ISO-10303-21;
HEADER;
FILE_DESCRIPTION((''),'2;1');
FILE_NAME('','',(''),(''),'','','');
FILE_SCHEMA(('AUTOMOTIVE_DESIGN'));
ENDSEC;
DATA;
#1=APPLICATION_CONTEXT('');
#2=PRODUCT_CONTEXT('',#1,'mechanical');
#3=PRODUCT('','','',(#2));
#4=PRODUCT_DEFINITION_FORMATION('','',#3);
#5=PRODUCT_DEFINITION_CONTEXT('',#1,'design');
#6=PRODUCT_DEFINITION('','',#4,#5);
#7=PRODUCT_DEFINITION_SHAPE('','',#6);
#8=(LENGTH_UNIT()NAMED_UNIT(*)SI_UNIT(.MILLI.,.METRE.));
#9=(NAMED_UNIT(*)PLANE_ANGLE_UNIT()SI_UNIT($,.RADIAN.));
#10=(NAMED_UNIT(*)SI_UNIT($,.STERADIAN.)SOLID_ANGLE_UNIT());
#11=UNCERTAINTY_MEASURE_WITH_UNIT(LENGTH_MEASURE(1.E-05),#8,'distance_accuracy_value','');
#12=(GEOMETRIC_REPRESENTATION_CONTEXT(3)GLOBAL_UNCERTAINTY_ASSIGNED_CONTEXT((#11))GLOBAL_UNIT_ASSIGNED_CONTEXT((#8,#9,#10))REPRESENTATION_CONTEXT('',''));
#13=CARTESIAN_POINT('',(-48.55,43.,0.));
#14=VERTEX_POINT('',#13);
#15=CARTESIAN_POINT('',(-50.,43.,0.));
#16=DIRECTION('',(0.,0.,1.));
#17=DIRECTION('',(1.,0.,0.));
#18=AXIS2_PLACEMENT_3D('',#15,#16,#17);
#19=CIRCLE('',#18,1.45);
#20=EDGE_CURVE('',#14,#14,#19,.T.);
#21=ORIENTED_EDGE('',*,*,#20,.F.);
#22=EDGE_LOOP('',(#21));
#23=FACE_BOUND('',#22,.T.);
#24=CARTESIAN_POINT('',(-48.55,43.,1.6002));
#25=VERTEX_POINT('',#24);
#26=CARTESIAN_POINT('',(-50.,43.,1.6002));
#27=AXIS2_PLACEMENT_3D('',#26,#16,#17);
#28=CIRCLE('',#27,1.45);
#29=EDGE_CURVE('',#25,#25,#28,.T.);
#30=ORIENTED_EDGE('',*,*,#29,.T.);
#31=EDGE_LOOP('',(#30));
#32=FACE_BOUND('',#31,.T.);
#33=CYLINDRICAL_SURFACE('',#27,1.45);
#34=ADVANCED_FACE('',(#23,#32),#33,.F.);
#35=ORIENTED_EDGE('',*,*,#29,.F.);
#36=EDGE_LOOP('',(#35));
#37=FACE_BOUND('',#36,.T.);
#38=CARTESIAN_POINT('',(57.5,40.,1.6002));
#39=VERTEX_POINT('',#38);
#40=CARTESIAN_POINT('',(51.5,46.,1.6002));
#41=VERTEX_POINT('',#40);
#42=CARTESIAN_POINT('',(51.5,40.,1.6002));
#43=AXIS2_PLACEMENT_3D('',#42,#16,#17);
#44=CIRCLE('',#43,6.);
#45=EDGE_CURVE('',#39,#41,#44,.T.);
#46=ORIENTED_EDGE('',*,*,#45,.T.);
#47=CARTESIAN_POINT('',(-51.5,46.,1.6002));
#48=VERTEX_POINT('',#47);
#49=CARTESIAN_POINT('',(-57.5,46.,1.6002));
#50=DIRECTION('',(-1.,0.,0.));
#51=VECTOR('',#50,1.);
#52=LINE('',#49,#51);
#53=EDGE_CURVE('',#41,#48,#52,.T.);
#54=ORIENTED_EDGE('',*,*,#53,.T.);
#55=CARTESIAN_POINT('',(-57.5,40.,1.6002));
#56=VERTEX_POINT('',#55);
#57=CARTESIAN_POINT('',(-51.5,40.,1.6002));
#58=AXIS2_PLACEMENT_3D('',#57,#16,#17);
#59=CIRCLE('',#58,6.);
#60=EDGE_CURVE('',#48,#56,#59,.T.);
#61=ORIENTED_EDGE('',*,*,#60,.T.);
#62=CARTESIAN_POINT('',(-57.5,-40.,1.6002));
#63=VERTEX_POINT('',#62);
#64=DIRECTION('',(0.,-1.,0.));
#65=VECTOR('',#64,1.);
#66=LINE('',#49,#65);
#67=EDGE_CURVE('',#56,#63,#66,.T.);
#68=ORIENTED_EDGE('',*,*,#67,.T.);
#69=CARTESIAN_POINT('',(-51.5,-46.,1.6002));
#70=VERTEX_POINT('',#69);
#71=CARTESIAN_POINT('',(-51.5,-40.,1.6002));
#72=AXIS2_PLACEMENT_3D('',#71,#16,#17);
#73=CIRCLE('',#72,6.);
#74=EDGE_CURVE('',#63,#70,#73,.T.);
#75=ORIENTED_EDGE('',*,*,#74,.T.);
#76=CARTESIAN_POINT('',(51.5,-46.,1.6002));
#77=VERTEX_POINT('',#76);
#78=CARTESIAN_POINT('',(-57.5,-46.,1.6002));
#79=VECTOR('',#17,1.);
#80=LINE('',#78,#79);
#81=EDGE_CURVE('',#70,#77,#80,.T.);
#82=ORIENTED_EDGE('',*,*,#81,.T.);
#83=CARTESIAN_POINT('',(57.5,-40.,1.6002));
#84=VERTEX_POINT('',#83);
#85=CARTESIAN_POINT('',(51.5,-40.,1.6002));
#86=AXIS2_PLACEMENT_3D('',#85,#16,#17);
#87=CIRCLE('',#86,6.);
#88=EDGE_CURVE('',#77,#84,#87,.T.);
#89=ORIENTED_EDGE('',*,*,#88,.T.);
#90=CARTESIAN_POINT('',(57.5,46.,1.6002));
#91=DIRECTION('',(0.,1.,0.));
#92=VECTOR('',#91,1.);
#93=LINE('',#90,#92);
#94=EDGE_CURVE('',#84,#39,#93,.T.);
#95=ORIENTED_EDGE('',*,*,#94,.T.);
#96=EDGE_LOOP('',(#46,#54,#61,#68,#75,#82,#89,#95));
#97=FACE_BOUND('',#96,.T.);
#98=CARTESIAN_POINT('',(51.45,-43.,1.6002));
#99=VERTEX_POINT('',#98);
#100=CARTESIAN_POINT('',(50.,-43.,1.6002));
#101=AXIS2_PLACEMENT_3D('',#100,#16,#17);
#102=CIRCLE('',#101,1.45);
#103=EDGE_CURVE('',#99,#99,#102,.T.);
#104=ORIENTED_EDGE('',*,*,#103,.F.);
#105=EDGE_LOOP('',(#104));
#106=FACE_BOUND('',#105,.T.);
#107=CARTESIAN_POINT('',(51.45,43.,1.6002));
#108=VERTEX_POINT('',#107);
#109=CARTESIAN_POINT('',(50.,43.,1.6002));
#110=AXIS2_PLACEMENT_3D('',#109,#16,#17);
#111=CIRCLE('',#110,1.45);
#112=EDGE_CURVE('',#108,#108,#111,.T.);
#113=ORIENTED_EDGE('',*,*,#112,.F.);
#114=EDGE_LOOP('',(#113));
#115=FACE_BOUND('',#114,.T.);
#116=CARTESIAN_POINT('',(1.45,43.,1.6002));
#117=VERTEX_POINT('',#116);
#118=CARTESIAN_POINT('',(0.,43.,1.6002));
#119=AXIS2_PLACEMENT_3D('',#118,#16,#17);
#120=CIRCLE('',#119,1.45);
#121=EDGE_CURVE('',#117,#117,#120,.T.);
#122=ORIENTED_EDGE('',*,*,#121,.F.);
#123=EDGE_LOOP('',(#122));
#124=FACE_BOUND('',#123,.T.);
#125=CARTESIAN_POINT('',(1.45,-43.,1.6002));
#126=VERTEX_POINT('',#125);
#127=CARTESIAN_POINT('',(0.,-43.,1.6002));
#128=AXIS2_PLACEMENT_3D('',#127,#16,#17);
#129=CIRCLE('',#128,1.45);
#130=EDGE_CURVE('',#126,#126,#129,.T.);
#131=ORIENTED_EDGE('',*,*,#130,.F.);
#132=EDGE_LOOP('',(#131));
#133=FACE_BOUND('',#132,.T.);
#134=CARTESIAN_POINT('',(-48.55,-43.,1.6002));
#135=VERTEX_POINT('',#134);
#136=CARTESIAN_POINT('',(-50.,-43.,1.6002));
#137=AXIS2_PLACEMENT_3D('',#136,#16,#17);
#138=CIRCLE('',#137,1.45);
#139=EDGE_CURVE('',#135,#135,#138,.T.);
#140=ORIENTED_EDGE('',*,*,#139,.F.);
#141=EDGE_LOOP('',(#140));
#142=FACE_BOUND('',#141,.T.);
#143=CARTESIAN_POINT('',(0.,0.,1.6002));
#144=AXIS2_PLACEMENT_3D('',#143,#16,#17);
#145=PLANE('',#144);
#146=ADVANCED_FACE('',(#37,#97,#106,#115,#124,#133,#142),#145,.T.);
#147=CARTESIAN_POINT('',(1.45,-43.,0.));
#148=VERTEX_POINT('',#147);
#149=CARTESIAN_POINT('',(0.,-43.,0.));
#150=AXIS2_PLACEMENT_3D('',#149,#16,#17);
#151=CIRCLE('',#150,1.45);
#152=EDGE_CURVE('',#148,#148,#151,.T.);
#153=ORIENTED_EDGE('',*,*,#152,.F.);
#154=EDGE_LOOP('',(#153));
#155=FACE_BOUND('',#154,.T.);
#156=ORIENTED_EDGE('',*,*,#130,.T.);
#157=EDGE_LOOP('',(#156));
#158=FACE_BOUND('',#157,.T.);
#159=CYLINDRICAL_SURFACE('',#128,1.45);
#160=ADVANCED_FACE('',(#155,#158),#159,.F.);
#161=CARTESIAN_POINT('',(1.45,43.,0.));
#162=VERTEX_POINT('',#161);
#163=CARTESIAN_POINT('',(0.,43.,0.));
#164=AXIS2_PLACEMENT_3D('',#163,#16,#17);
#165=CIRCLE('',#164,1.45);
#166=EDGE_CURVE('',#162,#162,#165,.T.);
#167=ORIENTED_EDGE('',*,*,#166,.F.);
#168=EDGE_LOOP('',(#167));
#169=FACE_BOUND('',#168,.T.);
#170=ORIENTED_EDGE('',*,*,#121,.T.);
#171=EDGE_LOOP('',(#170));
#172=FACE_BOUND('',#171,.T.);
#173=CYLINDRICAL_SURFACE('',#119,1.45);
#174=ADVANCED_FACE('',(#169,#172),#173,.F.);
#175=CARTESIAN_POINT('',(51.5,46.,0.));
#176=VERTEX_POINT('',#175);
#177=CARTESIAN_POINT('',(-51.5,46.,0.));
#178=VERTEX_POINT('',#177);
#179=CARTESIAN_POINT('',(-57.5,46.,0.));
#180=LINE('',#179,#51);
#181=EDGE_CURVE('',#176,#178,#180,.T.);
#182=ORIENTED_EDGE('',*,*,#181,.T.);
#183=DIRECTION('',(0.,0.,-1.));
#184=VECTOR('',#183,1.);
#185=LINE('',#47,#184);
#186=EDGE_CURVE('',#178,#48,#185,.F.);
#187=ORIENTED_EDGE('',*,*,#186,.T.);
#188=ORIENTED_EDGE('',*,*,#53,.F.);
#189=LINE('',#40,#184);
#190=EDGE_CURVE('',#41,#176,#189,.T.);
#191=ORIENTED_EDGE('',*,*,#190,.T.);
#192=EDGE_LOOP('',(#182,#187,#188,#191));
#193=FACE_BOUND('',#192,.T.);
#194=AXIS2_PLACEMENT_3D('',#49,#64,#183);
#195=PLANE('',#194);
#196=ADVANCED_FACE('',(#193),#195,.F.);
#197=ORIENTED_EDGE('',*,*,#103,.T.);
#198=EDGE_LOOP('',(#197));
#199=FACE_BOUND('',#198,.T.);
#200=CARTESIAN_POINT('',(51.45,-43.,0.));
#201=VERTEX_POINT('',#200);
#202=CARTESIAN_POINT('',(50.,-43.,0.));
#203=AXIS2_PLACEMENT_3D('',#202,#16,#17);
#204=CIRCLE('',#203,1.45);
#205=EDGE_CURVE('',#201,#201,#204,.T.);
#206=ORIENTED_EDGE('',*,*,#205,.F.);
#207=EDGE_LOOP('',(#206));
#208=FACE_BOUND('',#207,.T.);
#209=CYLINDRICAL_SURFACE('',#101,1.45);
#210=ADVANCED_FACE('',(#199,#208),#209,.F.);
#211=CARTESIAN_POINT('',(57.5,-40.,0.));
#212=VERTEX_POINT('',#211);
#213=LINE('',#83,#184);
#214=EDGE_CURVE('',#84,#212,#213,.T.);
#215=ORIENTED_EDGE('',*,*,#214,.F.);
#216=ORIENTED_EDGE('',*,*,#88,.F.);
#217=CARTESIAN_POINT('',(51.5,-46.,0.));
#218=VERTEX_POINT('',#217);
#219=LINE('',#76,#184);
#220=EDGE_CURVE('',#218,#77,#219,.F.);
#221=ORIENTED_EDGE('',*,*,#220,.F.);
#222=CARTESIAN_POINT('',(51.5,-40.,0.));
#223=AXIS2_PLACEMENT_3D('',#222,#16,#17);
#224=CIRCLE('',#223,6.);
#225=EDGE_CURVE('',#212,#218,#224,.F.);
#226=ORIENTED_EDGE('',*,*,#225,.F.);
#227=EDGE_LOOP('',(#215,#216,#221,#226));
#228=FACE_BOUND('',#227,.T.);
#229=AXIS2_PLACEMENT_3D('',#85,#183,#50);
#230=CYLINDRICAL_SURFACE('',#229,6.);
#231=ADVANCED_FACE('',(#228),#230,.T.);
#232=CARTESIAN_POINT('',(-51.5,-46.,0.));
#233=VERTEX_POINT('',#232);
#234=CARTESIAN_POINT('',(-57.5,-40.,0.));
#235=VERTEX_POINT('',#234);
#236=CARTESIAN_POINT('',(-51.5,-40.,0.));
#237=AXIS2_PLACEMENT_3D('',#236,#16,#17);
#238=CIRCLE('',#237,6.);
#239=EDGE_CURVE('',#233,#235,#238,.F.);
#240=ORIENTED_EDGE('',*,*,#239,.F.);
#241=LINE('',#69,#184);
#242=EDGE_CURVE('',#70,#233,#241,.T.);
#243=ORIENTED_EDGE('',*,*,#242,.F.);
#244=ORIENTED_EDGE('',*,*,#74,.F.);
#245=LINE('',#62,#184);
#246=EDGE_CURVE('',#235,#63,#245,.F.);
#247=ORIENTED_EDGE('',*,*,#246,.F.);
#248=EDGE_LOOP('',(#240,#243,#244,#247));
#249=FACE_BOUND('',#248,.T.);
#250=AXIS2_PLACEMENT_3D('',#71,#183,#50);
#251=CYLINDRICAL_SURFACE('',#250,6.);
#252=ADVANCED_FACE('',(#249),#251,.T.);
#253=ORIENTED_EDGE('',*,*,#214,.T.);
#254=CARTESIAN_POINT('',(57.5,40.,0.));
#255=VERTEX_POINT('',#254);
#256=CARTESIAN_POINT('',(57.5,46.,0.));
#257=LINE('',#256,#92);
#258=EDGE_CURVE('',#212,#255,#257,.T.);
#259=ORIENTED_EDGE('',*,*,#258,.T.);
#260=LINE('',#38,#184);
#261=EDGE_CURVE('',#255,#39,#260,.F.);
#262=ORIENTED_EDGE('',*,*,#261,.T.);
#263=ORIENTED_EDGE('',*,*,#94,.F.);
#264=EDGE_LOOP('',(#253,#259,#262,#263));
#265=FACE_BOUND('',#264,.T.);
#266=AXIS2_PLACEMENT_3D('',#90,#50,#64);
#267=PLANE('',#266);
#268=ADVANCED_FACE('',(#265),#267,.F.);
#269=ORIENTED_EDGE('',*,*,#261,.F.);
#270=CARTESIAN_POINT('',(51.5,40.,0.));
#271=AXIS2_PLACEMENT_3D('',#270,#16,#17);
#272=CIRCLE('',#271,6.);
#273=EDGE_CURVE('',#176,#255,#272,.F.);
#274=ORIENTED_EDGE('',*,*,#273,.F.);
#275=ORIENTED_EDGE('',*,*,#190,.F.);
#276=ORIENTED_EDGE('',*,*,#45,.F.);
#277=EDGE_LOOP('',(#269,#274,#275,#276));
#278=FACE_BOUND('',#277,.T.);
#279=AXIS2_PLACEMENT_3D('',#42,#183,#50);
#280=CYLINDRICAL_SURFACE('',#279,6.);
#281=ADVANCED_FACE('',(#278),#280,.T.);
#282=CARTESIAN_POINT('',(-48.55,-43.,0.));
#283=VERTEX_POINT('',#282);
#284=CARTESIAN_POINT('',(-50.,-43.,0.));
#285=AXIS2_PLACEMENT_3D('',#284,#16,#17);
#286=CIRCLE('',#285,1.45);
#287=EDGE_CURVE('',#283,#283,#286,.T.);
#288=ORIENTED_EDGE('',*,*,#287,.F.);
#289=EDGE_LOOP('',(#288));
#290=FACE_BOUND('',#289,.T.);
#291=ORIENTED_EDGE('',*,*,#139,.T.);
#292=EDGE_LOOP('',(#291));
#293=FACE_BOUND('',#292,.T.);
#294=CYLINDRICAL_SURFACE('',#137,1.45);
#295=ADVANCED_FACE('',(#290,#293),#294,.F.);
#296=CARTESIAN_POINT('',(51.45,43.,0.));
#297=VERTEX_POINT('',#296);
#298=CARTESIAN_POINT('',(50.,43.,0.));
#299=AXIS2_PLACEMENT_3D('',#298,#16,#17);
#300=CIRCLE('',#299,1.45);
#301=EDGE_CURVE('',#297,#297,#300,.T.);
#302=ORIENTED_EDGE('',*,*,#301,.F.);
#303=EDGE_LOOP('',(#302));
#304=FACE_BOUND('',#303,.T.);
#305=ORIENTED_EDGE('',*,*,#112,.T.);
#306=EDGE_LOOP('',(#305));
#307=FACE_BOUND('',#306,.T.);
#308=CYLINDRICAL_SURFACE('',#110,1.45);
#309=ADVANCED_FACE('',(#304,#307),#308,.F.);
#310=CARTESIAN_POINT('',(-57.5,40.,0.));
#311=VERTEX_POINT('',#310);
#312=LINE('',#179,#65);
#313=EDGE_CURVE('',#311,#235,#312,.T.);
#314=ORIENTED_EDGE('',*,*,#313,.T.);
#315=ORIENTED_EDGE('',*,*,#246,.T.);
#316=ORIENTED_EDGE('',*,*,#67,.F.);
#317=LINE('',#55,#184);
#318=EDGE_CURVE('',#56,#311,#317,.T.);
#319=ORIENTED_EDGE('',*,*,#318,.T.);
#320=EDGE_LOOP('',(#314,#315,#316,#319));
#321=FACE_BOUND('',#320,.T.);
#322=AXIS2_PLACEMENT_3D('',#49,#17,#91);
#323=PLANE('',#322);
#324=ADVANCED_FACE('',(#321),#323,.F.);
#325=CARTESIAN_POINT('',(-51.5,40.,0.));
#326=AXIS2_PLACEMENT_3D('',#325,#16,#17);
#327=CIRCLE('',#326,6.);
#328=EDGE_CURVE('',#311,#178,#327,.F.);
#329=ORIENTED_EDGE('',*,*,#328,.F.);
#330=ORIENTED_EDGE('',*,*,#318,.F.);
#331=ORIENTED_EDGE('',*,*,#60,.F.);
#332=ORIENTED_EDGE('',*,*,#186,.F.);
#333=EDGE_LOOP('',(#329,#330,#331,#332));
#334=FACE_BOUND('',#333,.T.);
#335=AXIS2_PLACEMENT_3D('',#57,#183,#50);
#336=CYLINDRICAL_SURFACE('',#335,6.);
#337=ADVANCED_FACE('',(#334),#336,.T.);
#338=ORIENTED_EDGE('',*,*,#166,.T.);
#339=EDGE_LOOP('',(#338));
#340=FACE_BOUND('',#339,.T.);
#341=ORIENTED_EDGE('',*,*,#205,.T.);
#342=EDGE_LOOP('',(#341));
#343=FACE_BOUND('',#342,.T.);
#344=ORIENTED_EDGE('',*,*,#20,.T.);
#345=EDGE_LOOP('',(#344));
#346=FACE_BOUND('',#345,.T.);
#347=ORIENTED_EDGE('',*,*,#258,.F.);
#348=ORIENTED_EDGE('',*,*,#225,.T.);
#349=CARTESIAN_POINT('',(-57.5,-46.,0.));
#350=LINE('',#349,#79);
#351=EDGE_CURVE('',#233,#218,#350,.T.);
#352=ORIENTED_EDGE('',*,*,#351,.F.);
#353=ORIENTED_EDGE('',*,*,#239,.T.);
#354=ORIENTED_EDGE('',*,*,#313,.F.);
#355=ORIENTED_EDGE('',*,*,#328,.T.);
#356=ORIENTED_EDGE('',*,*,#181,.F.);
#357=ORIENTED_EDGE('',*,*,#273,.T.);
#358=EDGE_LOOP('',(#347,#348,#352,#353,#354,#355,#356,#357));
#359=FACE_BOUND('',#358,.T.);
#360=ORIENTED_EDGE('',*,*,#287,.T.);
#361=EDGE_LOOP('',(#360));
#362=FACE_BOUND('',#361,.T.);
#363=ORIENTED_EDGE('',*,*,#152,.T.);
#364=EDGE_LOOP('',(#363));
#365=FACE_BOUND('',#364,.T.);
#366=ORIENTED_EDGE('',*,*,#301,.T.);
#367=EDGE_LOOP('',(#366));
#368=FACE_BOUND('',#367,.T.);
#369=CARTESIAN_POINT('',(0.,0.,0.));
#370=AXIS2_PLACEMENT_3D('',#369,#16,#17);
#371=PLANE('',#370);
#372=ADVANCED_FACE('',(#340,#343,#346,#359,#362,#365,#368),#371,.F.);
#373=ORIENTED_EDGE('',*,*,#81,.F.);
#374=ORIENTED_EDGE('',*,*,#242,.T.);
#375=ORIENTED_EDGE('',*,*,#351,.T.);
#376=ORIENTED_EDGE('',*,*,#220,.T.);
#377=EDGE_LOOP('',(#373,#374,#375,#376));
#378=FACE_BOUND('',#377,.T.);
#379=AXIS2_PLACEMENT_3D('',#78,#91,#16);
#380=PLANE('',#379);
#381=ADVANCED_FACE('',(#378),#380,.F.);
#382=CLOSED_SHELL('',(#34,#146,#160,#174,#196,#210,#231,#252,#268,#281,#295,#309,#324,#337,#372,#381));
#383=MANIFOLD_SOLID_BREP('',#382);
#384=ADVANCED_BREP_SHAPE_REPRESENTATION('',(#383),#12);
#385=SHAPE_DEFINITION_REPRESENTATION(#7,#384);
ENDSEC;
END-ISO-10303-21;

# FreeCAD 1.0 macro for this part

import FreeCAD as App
import Part
import Sketcher
from FreeCAD import Vector
Q = App.Units.Quantity


def edges_at(feature, points):
    """Names of the edges that pass closest to the given points."""
    edges = feature.Shape.Edges
    near = lambda p: min(range(len(edges)), key=lambda i: edges[i].distToShape(Part.Vertex(*p))[0])
    return sorted({f"Edge{near(p) + 1}" for p in points})

doc = App.newDocument("Part")
body = doc.addObject("PartDesign::Body", "Body")

sketch1 = doc.addObject("Sketcher::SketchObject", "Sketch")
body.addObject(sketch1)
sketch1.AttachmentSupport = (doc.XY_Plane, [""])
sketch1.MapMode = "FlatFace"
sketch1.addGeometry([
    Part.LineSegment(Vector(-57.5, 46, 0), Vector(-57.5, -46, 0)),
    Part.LineSegment(Vector(-57.5, -46, 0), Vector(57.5, -46, 0)),
    Part.LineSegment(Vector(57.5, -46, 0), Vector(57.5, 46, 0)),
    Part.LineSegment(Vector(57.5, 46, 0), Vector(-57.5, 46, 0)),
], False)
sketch1.addConstraint([
    Sketcher.Constraint("Coincident", 0, 2, 1, 1),
    Sketcher.Constraint("Coincident", 1, 2, 2, 1),
    Sketcher.Constraint("Coincident", 2, 2, 3, 1),
    Sketcher.Constraint("Coincident", 3, 2, 0, 1),
    Sketcher.Constraint("Vertical", 0),
    Sketcher.Constraint("Horizontal", 1),
    Sketcher.Constraint("Vertical", 2),
    Sketcher.Constraint("Horizontal", 3),
    Sketcher.Constraint("Symmetric", 0, 2, 2, 2, -1, 1),
    Sketcher.Constraint("DistanceX", 1, 1, 1, 2, Q("115 mm")),
    Sketcher.Constraint("DistanceY", 0, 2, 0, 1, Q("92 mm")),
])
pad1 = doc.addObject("PartDesign::Pad", "Pad")
body.addObject(pad1)
pad1.Profile = sketch1
pad1.Length = 1.6002

sketch2 = doc.addObject("Sketcher::SketchObject", "Sketch001")
body.addObject(sketch2)
sketch2.AttachmentSupport = (doc.XY_Plane, [""])
sketch2.MapMode = "FlatFace"
sketch2.AttachmentOffset = App.Placement(Vector(0, 0, 1.6002), App.Rotation())
sketch2.addGeometry([
    Part.Circle(Vector(50, -43, 0), Vector(0, 0, 1), 1.45),
    Part.Circle(Vector(-50, 43, 0), Vector(0, 0, 1), 1.45),
    Part.Circle(Vector(-50, -43, 0), Vector(0, 0, 1), 1.45),
    Part.Circle(Vector(50, 43, 0), Vector(0, 0, 1), 1.45),
    Part.Circle(Vector(0, 43, 0), Vector(0, 0, 1), 1.45),
    Part.Circle(Vector(0, -43, 0), Vector(0, 0, 1), 1.45),
], False)
sketch2.addConstraint([
    Sketcher.Constraint("Equal", 0, 1),
    Sketcher.Constraint("Equal", 1, 2),
    Sketcher.Constraint("Equal", 2, 3),
    Sketcher.Constraint("Equal", 3, 4),
    Sketcher.Constraint("Equal", 4, 5),
    Sketcher.Constraint("Symmetric", 0, 3, 1, 3, -1, 1),
    Sketcher.Constraint("Symmetric", 2, 3, 3, 3, -1, 1),
    Sketcher.Constraint("Symmetric", 4, 3, 5, 3, -1, 1),
    Sketcher.Constraint("Symmetric", 0, 3, 2, 3, -2),
    Sketcher.Constraint("PointOnObject", 4, 3, -2),
    Sketcher.Constraint("Horizontal", 3, 3, 4, 3),
    Sketcher.Constraint("Diameter", 0, Q("2.9 mm")),
    Sketcher.Constraint("DistanceX", -1, 1, 0, 3, Q("50 mm")),
    Sketcher.Constraint("DistanceY", 0, 3, -1, 1, Q("43 mm")),
])
doc.recompute()
hole = doc.addObject("PartDesign::Hole", "Hole")
body.addObject(hole)
hole.Profile = sketch2
hole.ThreadType = "None"
hole.Diameter = 2.9
hole.DepthType = "ThroughAll"
doc.recompute()

fillet = doc.addObject("PartDesign::Fillet", "Fillet")
body.addObject(fillet)
fillet.Base = (hole, edges_at(hole, [
    (57.5, -46, 0.8),
    (-57.5, -46, 0.8),
    (-57.5, 46, 0.8),
    (57.5, 46, 0.8),
]))
fillet.Radius = 6

doc.recompute()
